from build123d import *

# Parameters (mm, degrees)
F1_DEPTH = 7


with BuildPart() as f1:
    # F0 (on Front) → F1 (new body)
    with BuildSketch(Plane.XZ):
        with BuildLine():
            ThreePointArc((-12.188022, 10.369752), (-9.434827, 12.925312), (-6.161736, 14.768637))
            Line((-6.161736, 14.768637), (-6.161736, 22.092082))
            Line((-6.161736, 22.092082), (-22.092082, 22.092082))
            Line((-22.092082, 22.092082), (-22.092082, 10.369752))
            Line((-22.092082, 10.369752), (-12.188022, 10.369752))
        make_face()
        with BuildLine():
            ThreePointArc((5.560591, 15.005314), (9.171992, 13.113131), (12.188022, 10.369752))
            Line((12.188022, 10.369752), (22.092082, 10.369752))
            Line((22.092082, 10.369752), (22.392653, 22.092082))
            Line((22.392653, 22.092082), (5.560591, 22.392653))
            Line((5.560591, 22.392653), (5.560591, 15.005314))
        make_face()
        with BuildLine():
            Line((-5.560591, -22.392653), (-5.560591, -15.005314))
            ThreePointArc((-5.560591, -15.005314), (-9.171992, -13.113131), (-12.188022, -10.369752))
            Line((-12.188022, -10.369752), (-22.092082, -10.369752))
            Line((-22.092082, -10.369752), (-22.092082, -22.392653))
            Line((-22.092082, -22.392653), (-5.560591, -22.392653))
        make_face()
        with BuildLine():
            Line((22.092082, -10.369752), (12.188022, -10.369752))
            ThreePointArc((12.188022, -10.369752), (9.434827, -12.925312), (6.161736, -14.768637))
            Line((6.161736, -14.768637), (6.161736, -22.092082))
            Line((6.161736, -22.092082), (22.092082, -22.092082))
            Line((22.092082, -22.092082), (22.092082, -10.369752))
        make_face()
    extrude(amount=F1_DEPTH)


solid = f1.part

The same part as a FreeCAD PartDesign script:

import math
import FreeCAD as App
import Part
import Sketcher
Q = App.Units.Quantity

doc = App.newDocument("Part")
params = doc.addObject("Spreadsheet::Sheet", "Params")
for row, (alias, value) in enumerate([
    ("pad1_length", "7 mm"),
], start=1):
    params.set(f"A{row}", alias)
    params.set(f"B{row}", "=" + value)
    params.setAlias(f"B{row}", alias)

body = doc.addObject("PartDesign::Body", "Body")
body.AllowCompound = True

sketch1 = body.newObject("Sketcher::SketchObject", "Sketch")
sketch1.AttachmentSupport = (doc.getObject("XZ_Plane"), [""])
sketch1.MapMode = "FlatFace"
sketch1.addGeometry(Part.ArcOfCircle(Part.Circle(App.Vector(0, 0, 0), App.Vector(0, 0, 1), 16), math.radians(113), math.radians(140)), False)
sketch1.addGeometry(Part.LineSegment(App.Vector(-6, 15, 0), App.Vector(-6, 22, 0)), False)
sketch1.addGeometry(Part.LineSegment(App.Vector(-6, 22, 0), App.Vector(-22, 22, 0)), False)
sketch1.addGeometry(Part.LineSegment(App.Vector(-22, 22, 0), App.Vector(-22, 10, 0)), False)
sketch1.addGeometry(Part.LineSegment(App.Vector(-22, 10, 0), App.Vector(-12, 10, 0)), False)
sketch1.addGeometry(Part.ArcOfCircle(Part.Circle(App.Vector(0, 0, 0), App.Vector(0, 0, 1), 16), math.radians(40), math.radians(70)), False)
sketch1.addGeometry(Part.LineSegment(App.Vector(12, 10, 0), App.Vector(22, 10, 0)), False)
sketch1.addGeometry(Part.LineSegment(App.Vector(22, 10, 0), App.Vector(22, 22, 0)), False)
sketch1.addGeometry(Part.LineSegment(App.Vector(22, 22, 0), App.Vector(6, 22, 0)), False)
sketch1.addGeometry(Part.LineSegment(App.Vector(6, 22, 0), App.Vector(6, 15, 0)), False)
sketch1.addGeometry(Part.LineSegment(App.Vector(-6, -22, 0), App.Vector(-6, -15, 0)), False)
sketch1.addGeometry(Part.ArcOfCircle(Part.Circle(App.Vector(0, 0, 0), App.Vector(0, 0, 1), 16), math.radians(-140), math.radians(-110)), False)
sketch1.addGeometry(Part.LineSegment(App.Vector(-12, -10, 0), App.Vector(-22, -10, 0)), False)
sketch1.addGeometry(Part.LineSegment(App.Vector(-22, -10, 0), App.Vector(-22, -22, 0)), False)
sketch1.addGeometry(Part.LineSegment(App.Vector(-22, -22, 0), App.Vector(-6, -22, 0)), False)
sketch1.addGeometry(Part.LineSegment(App.Vector(22, -10, 0), App.Vector(12, -10, 0)), False)
sketch1.addGeometry(Part.ArcOfCircle(Part.Circle(App.Vector(0, 0, 0), App.Vector(0, 0, 1), 16), math.radians(-67), math.radians(-40)), False)
sketch1.addGeometry(Part.LineSegment(App.Vector(6, -15, 0), App.Vector(6, -22, 0)), False)
sketch1.addGeometry(Part.LineSegment(App.Vector(6, -22, 0), App.Vector(22, -22, 0)), False)
sketch1.addGeometry(Part.LineSegment(App.Vector(22, -22, 0), App.Vector(22, -10, 0)), False)
sketch1.addConstraint(Sketcher.Constraint("Coincident", 0, 1, 1, 1))
sketch1.addConstraint(Sketcher.Constraint("Coincident", 1, 2, 2, 1))
sketch1.addConstraint(Sketcher.Constraint("Coincident", 2, 2, 3, 1))
sketch1.addConstraint(Sketcher.Constraint("Coincident", 3, 2, 4, 1))
sketch1.addConstraint(Sketcher.Constraint("Coincident", 4, 2, 0, 2))
sketch1.addConstraint(Sketcher.Constraint("Coincident", 5, 1, 6, 1))
sketch1.addConstraint(Sketcher.Constraint("Coincident", 6, 2, 7, 1))
sketch1.addConstraint(Sketcher.Constraint("Coincident", 7, 2, 8, 1))
sketch1.addConstraint(Sketcher.Constraint("Coincident", 8, 2, 9, 1))
sketch1.addConstraint(Sketcher.Constraint("Coincident", 9, 2, 5, 2))
sketch1.addConstraint(Sketcher.Constraint("Coincident", 10, 2, 11, 2))
sketch1.addConstraint(Sketcher.Constraint("Coincident", 11, 1, 12, 1))
sketch1.addConstraint(Sketcher.Constraint("Coincident", 12, 2, 13, 1))
sketch1.addConstraint(Sketcher.Constraint("Coincident", 13, 2, 14, 1))
sketch1.addConstraint(Sketcher.Constraint("Coincident", 14, 2, 10, 1))
sketch1.addConstraint(Sketcher.Constraint("Coincident", 15, 2, 16, 2))
sketch1.addConstraint(Sketcher.Constraint("Coincident", 16, 1, 17, 1))
sketch1.addConstraint(Sketcher.Constraint("Coincident", 17, 2, 18, 1))
sketch1.addConstraint(Sketcher.Constraint("Coincident", 18, 2, 19, 1))
sketch1.addConstraint(Sketcher.Constraint("Coincident", 19, 2, 15, 1))
sketch1.addConstraint(Sketcher.Constraint("Vertical", 1))
sketch1.addConstraint(Sketcher.Constraint("Horizontal", 2))
sketch1.addConstraint(Sketcher.Constraint("Vertical", 3))
sketch1.addConstraint(Sketcher.Constraint("Horizontal", 4))
sketch1.addConstraint(Sketcher.Constraint("Horizontal", 6))
sketch1.addConstraint(Sketcher.Constraint("Vertical", 9))
sketch1.addConstraint(Sketcher.Constraint("Vertical", 10))
sketch1.addConstraint(Sketcher.Constraint("Horizontal", 12))
sketch1.addConstraint(Sketcher.Constraint("Vertical", 13))
sketch1.addConstraint(Sketcher.Constraint("Horizontal", 14))
sketch1.addConstraint(Sketcher.Constraint("Horizontal", 15))
sketch1.addConstraint(Sketcher.Constraint("Vertical", 17))
sketch1.addConstraint(Sketcher.Constraint("Horizontal", 18))
sketch1.addConstraint(Sketcher.Constraint("Vertical", 19))
sketch1.addConstraint(Sketcher.Constraint("Equal", 5, 11))
sketch1.addConstraint(Sketcher.Constraint("Equal", 0, 16))
sketch1.addConstraint(Sketcher.Constraint("Symmetric", 5, 3, 11, 3, -1, 1))
sketch1.addConstraint(Sketcher.Constraint("Symmetric", 0, 3, 16, 3, -1, 1))
sketch1.addConstraint(Sketcher.Constraint("Symmetric", 6, 2, 12, 2, -1, 1))
sketch1.addConstraint(Sketcher.Constraint("Symmetric", 8, 2, 14, 2, -1, 1))
sketch1.addConstraint(Sketcher.Constraint("Symmetric", 1, 2, 17, 2, -1, 1))
sketch1.addConstraint(Sketcher.Constraint("Symmetric", 3, 2, 19, 2, -1, 1))
sketch1.addConstraint(Sketcher.Constraint("Symmetric", 0, 3, 5, 3, -2))
sketch1.addConstraint(Sketcher.Constraint("Symmetric", 4, 2, 5, 1, -2))
sketch1.addConstraint(Sketcher.Constraint("Horizontal", 2, 2, 7, 2))
sketch1.addConstraint(Sketcher.Constraint("Vertical", 3, 2, 12, 2))
sketch1.addConstraint(Sketcher.Constraint("Radius", 0, Q("16.002469 mm")))
sketch1.addConstraint(Sketcher.Constraint("DistanceY", 13, 2, 13, 1, Q("12.022901 mm")))
sketch1.addConstraint(Sketcher.Constraint("DistanceX", 4, 1, 4, 2, Q("9.90406 mm")))
sketch1.addConstraint(Sketcher.Constraint("DistanceX", 14, 1, 14, 2, Q("16.531491 mm")))
sketch1.addConstraint(Sketcher.Constraint("DistanceY", 3, 2, 3, 1, Q("11.72233 mm")))
sketch1.addConstraint(Sketcher.Constraint("DistanceY", 9, 2, 9, 1, Q("7.387339 mm")))
sketch1.addConstraint(Sketcher.Constraint("DistanceX", 10, 2, 5, 3, Q("5.560599 mm")))
sketch1.addConstraint(Sketcher.Constraint("DistanceX", 2, 2, 2, 1, Q("15.930346 mm")))
sketch1.addConstraint(Sketcher.Constraint("DistanceY", -1, 1, 5, 1, Q("10.369752 mm")))
sketch1.addConstraint(Sketcher.Constraint("DistanceX", 6, 2, 7, 2, Q("0.300571 mm")))
pad1 = body.newObject("PartDesign::Pad", "Pad")
pad1.Profile = sketch1
pad1.setExpression("Length", "Params.pad1_length")

doc.recompute()
